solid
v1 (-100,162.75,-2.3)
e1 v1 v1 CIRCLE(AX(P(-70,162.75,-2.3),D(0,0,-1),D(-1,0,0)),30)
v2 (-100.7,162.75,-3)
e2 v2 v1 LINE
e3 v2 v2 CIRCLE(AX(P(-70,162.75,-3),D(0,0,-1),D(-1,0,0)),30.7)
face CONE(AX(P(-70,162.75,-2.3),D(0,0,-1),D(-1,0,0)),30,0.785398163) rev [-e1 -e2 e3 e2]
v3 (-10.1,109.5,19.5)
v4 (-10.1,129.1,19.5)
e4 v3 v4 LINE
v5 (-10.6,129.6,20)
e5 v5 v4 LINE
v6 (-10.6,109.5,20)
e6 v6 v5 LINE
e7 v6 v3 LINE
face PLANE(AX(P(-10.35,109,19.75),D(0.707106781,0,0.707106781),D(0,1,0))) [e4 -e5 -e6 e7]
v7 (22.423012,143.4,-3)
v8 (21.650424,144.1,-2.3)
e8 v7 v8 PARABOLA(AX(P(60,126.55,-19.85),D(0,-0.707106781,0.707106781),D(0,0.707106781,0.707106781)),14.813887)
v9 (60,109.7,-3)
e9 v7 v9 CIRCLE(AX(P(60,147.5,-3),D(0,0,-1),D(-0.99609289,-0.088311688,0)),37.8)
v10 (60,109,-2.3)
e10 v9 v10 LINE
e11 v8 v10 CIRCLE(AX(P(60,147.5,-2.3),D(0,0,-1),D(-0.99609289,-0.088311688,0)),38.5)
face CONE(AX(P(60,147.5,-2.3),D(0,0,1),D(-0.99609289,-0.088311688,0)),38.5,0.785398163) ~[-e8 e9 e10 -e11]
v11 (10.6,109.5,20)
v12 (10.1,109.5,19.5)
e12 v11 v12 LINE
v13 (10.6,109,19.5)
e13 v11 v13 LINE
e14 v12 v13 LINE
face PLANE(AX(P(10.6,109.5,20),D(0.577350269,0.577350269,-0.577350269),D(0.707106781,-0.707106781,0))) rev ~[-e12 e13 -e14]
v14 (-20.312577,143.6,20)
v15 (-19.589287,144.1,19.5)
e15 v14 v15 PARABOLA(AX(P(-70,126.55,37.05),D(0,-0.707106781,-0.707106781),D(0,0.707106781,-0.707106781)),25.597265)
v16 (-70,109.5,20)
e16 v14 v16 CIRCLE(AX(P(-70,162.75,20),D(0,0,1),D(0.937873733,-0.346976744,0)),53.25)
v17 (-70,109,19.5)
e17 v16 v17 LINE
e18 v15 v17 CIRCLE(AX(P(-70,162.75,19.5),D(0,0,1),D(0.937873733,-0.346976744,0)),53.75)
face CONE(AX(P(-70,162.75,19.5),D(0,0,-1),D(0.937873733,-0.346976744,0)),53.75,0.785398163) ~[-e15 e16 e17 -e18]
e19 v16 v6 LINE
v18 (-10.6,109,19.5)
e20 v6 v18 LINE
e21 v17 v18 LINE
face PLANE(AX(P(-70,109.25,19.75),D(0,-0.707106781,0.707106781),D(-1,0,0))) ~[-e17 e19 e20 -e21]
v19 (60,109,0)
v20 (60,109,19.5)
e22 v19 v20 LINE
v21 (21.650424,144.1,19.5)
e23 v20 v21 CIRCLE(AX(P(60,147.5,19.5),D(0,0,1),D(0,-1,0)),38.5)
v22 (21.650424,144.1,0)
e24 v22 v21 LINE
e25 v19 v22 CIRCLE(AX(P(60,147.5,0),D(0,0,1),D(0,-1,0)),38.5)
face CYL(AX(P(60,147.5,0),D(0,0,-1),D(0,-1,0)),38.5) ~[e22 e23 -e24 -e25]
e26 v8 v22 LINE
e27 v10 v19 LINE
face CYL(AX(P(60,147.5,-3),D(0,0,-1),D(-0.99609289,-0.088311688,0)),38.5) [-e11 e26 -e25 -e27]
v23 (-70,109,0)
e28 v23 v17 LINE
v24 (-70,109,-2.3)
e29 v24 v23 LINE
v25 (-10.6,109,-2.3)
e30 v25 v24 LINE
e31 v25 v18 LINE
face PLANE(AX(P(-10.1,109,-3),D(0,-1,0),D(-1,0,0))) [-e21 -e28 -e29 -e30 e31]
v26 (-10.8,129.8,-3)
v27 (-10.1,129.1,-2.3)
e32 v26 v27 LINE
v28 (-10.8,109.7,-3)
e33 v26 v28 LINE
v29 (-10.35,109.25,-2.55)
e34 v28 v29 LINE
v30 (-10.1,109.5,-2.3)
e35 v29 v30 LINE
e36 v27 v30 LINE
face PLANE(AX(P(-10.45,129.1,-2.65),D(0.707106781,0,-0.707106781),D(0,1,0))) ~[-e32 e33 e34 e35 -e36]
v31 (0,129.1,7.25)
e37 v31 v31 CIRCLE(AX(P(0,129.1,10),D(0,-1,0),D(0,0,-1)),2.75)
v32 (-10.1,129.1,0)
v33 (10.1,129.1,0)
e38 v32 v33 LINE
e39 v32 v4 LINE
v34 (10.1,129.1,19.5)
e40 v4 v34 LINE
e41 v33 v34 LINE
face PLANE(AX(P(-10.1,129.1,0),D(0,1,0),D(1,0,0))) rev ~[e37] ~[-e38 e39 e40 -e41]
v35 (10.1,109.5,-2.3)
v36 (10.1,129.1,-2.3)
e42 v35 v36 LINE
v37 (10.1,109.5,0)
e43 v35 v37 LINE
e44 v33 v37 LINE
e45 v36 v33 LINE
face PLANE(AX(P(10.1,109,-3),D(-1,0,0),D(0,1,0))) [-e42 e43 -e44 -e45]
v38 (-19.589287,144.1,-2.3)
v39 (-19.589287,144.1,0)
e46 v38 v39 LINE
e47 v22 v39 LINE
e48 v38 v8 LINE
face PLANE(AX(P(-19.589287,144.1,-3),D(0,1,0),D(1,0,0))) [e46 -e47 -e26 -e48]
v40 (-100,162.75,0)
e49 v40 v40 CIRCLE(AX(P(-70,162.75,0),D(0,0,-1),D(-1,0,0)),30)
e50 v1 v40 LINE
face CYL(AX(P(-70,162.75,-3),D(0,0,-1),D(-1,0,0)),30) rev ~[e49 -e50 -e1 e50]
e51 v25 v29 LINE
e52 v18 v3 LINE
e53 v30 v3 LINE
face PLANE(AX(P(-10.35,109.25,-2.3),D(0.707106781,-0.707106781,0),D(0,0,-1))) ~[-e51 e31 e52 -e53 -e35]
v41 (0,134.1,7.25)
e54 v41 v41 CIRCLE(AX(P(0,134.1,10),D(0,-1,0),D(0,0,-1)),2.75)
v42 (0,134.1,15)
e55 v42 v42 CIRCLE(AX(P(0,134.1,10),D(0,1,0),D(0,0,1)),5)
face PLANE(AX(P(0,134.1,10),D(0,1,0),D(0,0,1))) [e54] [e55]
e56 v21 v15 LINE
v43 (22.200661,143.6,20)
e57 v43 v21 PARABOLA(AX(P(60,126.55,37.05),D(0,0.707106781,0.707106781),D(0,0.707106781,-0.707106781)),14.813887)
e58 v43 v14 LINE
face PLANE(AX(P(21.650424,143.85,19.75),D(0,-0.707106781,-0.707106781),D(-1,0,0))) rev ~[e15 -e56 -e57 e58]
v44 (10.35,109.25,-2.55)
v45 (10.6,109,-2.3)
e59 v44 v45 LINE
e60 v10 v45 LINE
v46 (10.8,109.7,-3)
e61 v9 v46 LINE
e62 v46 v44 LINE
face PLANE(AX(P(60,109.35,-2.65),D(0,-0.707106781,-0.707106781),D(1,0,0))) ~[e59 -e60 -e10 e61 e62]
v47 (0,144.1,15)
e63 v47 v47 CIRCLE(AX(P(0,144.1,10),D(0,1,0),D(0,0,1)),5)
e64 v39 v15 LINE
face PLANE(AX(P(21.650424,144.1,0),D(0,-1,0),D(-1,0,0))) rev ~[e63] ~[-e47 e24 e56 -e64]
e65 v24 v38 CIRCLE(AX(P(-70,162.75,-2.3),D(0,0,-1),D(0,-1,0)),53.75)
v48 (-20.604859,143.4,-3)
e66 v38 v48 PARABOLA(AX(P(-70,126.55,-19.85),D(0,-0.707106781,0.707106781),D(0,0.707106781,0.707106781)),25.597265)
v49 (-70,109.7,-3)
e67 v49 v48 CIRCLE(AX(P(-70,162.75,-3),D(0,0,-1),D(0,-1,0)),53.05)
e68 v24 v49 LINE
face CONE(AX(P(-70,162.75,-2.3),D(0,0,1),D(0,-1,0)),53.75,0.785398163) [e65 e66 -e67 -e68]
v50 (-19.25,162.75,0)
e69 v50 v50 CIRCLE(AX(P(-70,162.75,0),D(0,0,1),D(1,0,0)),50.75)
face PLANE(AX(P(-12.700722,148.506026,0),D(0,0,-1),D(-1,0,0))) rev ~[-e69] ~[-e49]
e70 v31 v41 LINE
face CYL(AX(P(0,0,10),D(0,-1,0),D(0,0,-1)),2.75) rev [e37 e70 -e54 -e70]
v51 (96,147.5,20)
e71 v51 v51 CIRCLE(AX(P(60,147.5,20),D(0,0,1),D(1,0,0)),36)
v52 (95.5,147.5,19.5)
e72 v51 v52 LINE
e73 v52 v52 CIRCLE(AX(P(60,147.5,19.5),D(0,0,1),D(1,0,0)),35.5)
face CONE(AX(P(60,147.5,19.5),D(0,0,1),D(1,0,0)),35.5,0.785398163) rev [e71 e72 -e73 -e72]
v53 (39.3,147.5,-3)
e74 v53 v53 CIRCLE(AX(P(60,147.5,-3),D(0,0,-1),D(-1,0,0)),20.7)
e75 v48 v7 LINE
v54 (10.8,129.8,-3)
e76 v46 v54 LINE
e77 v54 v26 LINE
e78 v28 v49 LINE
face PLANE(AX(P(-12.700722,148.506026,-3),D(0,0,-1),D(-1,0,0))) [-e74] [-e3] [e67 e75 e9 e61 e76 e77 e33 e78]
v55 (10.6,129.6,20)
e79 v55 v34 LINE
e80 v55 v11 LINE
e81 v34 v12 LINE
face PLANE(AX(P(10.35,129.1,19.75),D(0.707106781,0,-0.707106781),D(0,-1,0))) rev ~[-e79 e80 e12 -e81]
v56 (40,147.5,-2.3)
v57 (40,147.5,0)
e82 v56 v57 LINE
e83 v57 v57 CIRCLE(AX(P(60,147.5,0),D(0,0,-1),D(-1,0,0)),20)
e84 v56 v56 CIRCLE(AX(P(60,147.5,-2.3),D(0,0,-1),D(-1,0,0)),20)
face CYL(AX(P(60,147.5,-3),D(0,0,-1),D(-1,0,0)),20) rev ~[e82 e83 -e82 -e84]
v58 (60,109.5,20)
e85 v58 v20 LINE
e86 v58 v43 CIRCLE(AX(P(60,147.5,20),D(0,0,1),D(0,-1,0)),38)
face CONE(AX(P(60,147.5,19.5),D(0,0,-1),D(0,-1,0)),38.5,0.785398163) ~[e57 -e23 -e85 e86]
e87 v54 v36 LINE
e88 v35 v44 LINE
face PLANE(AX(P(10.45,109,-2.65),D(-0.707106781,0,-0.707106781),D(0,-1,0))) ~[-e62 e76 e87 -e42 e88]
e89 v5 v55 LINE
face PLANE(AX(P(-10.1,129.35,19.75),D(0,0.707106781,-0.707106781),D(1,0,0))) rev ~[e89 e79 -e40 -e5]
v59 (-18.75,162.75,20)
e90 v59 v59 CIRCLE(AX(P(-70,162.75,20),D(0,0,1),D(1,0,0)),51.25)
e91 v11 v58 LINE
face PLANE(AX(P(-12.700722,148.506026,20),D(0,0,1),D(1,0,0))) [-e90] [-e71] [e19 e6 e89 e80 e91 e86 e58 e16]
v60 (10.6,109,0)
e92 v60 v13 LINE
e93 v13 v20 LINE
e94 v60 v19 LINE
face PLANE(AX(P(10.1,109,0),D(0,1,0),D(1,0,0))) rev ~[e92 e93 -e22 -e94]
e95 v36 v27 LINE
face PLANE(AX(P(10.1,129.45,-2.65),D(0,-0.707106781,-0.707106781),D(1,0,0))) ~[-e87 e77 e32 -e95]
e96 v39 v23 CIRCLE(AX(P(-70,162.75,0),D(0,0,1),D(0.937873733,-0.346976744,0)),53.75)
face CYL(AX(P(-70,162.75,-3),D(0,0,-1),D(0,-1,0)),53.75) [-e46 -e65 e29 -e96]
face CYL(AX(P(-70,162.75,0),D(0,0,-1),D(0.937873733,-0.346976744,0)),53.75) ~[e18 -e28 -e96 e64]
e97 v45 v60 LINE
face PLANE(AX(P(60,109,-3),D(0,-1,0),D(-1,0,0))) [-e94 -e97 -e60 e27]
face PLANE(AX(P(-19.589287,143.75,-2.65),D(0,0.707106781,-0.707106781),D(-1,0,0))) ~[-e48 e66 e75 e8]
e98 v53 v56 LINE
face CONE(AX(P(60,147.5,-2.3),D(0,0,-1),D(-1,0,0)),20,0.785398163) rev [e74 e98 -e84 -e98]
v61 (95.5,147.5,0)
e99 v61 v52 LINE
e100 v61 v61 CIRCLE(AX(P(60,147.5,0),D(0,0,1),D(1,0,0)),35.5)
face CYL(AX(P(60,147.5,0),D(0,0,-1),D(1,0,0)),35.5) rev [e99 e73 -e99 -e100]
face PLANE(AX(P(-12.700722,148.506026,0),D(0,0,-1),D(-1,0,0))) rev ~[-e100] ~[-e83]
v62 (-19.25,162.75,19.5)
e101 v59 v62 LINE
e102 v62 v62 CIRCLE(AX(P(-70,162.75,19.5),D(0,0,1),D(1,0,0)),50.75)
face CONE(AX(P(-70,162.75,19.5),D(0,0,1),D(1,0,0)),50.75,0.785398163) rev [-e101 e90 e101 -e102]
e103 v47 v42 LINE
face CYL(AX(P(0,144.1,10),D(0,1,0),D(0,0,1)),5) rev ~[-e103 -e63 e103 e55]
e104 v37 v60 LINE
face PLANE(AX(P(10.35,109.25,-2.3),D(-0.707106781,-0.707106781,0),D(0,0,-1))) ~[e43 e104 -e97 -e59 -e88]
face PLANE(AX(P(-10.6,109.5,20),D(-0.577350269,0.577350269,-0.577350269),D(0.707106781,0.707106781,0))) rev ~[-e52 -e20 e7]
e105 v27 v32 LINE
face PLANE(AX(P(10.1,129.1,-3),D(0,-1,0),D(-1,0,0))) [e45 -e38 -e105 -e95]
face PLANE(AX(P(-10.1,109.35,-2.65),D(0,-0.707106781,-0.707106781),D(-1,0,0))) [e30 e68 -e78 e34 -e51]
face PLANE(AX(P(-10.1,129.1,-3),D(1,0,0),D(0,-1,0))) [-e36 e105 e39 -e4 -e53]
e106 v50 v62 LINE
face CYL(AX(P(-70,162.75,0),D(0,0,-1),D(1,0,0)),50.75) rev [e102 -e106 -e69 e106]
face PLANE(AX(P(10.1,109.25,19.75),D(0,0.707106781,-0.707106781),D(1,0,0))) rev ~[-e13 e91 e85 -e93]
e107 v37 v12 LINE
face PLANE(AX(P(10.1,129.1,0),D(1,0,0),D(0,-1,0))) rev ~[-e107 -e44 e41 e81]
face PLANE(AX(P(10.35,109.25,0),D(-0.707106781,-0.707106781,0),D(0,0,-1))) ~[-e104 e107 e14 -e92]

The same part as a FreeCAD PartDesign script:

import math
import FreeCAD as App
import Part
import Sketcher

V = App.Vector
Q = App.Units.Quantity


def edges_at(feature, points):
    """Names of the edges that pass closest to the given points."""
    edges = feature.Shape.Edges
    near = lambda p: min(range(len(edges)), key=lambda i: edges[i].distToShape(Part.Vertex(*p))[0])
    return sorted({f"Edge{near(p) + 1}" for p in points})

doc = App.newDocument("Part")
params = doc.addObject("Spreadsheet::Sheet", "Params")
for row, (alias, value) in enumerate([
    ("sketch1_diameter", "71 mm"),
    ("sketch1_diameter2", "101.5 mm"),
    ("sketch1_radius", "38.5 mm"),
    ("sketch1_radius2", "53.75 mm"),
    ("sketch1_width", "20.2 mm"),
    ("pad1_length", "20 mm"),
    ("sketch2_diameter", "5.5 mm"),
    ("sketch3_diameter", "10 mm"),
    ("pocket2_length", "10 mm"),
    ("sketch4_diameter", "40 mm"),
    ("sketch4_diameter2", "60 mm"),
    ("sketch4_radius", "38.5 mm"),
    ("sketch4_radius2", "53.75 mm"),
    ("sketch4_width", "59.9 mm"),
    ("pad2_length", "3 mm"),
    ("chamfer_size", "0.7 mm"),
    ("chamfer2_size", "0.5 mm"),
], start=1):
    params.set(f"A{row}", alias)
    params.set(f"B{row}", "=" + value)
    params.setAlias(f"B{row}", alias)

body = doc.addObject("PartDesign::Body", "Body")

sketch1 = body.newObject("Sketcher::SketchObject", "Sketch")
sketch1.AttachmentSupport = (doc.getObject("XY_Plane"), [""])
sketch1.MapMode = "FlatFace"
sketch1.addGeometry(Part.LineSegment(V(-10.1, 109, 0), V(-10.1, 129.1, 0)), False)
sketch1.addGeometry(Part.LineSegment(V(-10.1, 129.1, 0), V(10.1, 129.1, 0)), False)
sketch1.addGeometry(Part.LineSegment(V(10.1, 129.1, 0), V(10.1, 109, 0)), False)
sketch1.addGeometry(Part.LineSegment(V(10.1, 109, 0), V(60, 109, 0)), False)
sketch1.addGeometry(Part.ArcOfCircle(Part.Circle(V(60, 147.5, 0), V(0, 0, 1), 38.5), math.radians(-90), math.radians(185.066487)), False)
sketch1.addGeometry(Part.LineSegment(V(21.650424, 144.1, 0), V(-19.589287, 144.1, 0)), False)
sketch1.addGeometry(Part.ArcOfCircle(Part.Circle(V(-70, 162.75, 0), V(0, 0, 1), 53.75), math.radians(-20.30251), math.radians(270)), False)
sketch1.addGeometry(Part.LineSegment(V(-70, 109, 0), V(-10.1, 109, 0)), False)
sketch1.addGeometry(Part.Circle(V(60, 147.5, 0), V(0, 0, 1), 35.5), False)
sketch1.addGeometry(Part.Circle(V(-70, 162.75, 0), V(0, 0, 1), 50.75), False)
sketch1.addConstraint(Sketcher.Constraint("Coincident", 0, 2, 1, 1))
sketch1.addConstraint(Sketcher.Constraint("Coincident", 1, 2, 2, 1))
sketch1.addConstraint(Sketcher.Constraint("Coincident", 2, 2, 3, 1))
sketch1.addConstraint(Sketcher.Constraint("Tangent", 3, 2, 4, 1))
sketch1.addConstraint(Sketcher.Constraint("Coincident", 4, 2, 5, 1))
sketch1.addConstraint(Sketcher.Constraint("Coincident", 5, 2, 6, 1))
sketch1.addConstraint(Sketcher.Constraint("Tangent", 6, 2, 7, 1))
sketch1.addConstraint(Sketcher.Constraint("Coincident", 7, 2, 0, 1))
sketch1.addConstraint(Sketcher.Constraint("Vertical", 0))
sketch1.addConstraint(Sketcher.Constraint("Horizontal", 1))
sketch1.addConstraint(Sketcher.Constraint("Vertical", 2))
sketch1.addConstraint(Sketcher.Constraint("Horizontal", 3))
sketch1.addConstraint(Sketcher.Constraint("Horizontal", 5))
sketch1.addConstraint(Sketcher.Constraint("Horizontal", 7))
sketch1.addConstraint(Sketcher.Constraint("Coincident", 8, 3, 4, 3))
sketch1.addConstraint(Sketcher.Constraint("Coincident", 9, 3, 6, 3))
sketch1.addConstraint(Sketcher.Constraint("Symmetric", 2, 2, 7, 2, -2))
sketch1.addConstraint(Sketcher.Constraint("Diameter", 8, Q("71 mm")))
sketch1.addConstraint(Sketcher.Constraint("Diameter", 9, Q("101.5 mm")))
sketch1.addConstraint(Sketcher.Constraint("Radius", 4, Q("38.5 mm")))
sketch1.addConstraint(Sketcher.Constraint("Radius", 6, Q("53.75 mm")))
sketch1.addConstraint(Sketcher.Constraint("DistanceX", 1, 1, 1, 2, Q("20.2 mm")))
sketch1.addConstraint(Sketcher.Constraint("DistanceX", 3, 1, 3, 2, Q("49.9 mm")))
sketch1.addConstraint(Sketcher.Constraint("DistanceX", 7, 1, 7, 2, Q("59.9 mm")))
sketch1.addConstraint(Sketcher.Constraint("DistanceY", 0, 1, 0, 2, Q("20.1 mm")))
sketch1.addConstraint(Sketcher.Constraint("DistanceY", -1, 1, 2, 2, Q("109 mm")))
sketch1.addConstraint(Sketcher.Constraint("DistanceY", 1, 2, 4, 2, Q("15 mm")))
sketch1.setExpression("Constraints[17]", "Params.sketch1_diameter")
sketch1.setExpression("Constraints[18]", "Params.sketch1_diameter2")
sketch1.setExpression("Constraints[19]", "Params.sketch1_radius")
sketch1.setExpression("Constraints[20]", "Params.sketch1_radius2")
sketch1.setExpression("Constraints[21]", "Params.sketch1_width")
pad1 = body.newObject("PartDesign::Pad", "Pad")
pad1.Profile = sketch1
pad1.setExpression("Length", "Params.pad1_length")

sketch2 = body.newObject("Sketcher::SketchObject", "Sketch001")
sketch2.AttachmentSupport = (doc.getObject("XZ_Plane"), [""])
sketch2.MapMode = "FlatFace"
sketch2.addGeometry(Part.Circle(V(0, 10, 0), V(0, 0, 1), 2.75), False)
sketch2.addConstraint(Sketcher.Constraint("PointOnObject", 0, 3, -2))
sketch2.addConstraint(Sketcher.Constraint("Diameter", 0, Q("5.5 mm")))
sketch2.addConstraint(Sketcher.Constraint("DistanceY", -1, 1, 0, 3, Q("10 mm")))
sketch2.setExpression("Constraints[1]", "Params.sketch2_diameter")
pocket1 = body.newObject("PartDesign::Pocket", "Pocket")
pocket1.Profile = sketch2
pocket1.Type = "ThroughAll"

sketch3 = body.newObject("Sketcher::SketchObject", "Sketch002")
sketch3.AttachmentSupport = (doc.getObject("XZ_Plane"), [""])
sketch3.MapMode = "FlatFace"
sketch3.AttachmentOffset = App.Placement(V(0, 0, -144.1), App.Rotation())
sketch3.addGeometry(Part.Circle(V(0, 10, 0), V(0, 0, 1), 5), False)
sketch3.addConstraint(Sketcher.Constraint("PointOnObject", 0, 3, -2))
sketch3.addConstraint(Sketcher.Constraint("Diameter", 0, Q("10 mm")))
sketch3.addConstraint(Sketcher.Constraint("DistanceY", -1, 1, 0, 3, Q("10 mm")))
sketch3.setExpression("Constraints[1]", "Params.sketch3_diameter")
pocket2 = body.newObject("PartDesign::Pocket", "Pocket001")
pocket2.Profile = sketch3
pocket2.setExpression("Length", "Params.pocket2_length")
pocket2.Reversed = True

sketch4 = body.newObject("Sketcher::SketchObject", "Sketch003")
sketch4.AttachmentSupport = (doc.getObject("XY_Plane"), [""])
sketch4.MapMode = "FlatFace"
sketch4.AttachmentOffset = App.Placement(V(0, 0, -3), App.Rotation())
sketch4.addGeometry(Part.LineSegment(V(-10.1, 109, 0), V(-70, 109, 0)), False)
sketch4.addGeometry(Part.ArcOfCircle(Part.Circle(V(-70, 162.75, 0), V(0, 0, 1), 53.75), math.radians(-20.30251), math.radians(270)), False)
sketch4.addGeometry(Part.LineSegment(V(-19.589287, 144.1, 0), V(21.650424, 144.1, 0)), False)
sketch4.addGeometry(Part.ArcOfCircle(Part.Circle(V(60, 147.5, 0), V(0, 0, 1), 38.5), math.radians(-90), math.radians(185.066487)), False)
sketch4.addGeometry(Part.LineSegment(V(60, 109, 0), V(10.1, 109, 0)), False)
sketch4.addGeometry(Part.LineSegment(V(10.1, 109, 0), V(10.1, 129.1, 0)), False)
sketch4.addGeometry(Part.LineSegment(V(10.1, 129.1, 0), V(-10.1, 129.1, 0)), False)
sketch4.addGeometry(Part.LineSegment(V(-10.1, 129.1, 0), V(-10.1, 109, 0)), False)
sketch4.addGeometry(Part.Circle(V(60, 147.5, 0), V(0, 0, 1), 20), False)
sketch4.addGeometry(Part.Circle(V(-70, 162.75, 0), V(0, 0, 1), 30), False)
sketch4.addConstraint(Sketcher.Constraint("Tangent", 0, 2, 1, 2))
sketch4.addConstraint(Sketcher.Constraint("Coincident", 1, 1, 2, 1))
sketch4.addConstraint(Sketcher.Constraint("Coincident", 2, 2, 3, 2))
sketch4.addConstraint(Sketcher.Constraint("Tangent", 3, 1, 4, 1))
sketch4.addConstraint(Sketcher.Constraint("Coincident", 4, 2, 5, 1))
sketch4.addConstraint(Sketcher.Constraint("Coincident", 5, 2, 6, 1))
sketch4.addConstraint(Sketcher.Constraint("Coincident", 6, 2, 7, 1))
sketch4.addConstraint(Sketcher.Constraint("Coincident", 7, 2, 0, 1))
sketch4.addConstraint(Sketcher.Constraint("Horizontal", 0))
sketch4.addConstraint(Sketcher.Constraint("Horizontal", 2))
sketch4.addConstraint(Sketcher.Constraint("Horizontal", 4))
sketch4.addConstraint(Sketcher.Constraint("Vertical", 5))
sketch4.addConstraint(Sketcher.Constraint("Horizontal", 6))
sketch4.addConstraint(Sketcher.Constraint("Vertical", 7))
sketch4.addConstraint(Sketcher.Constraint("Coincident", 8, 3, 3, 3))
sketch4.addConstraint(Sketcher.Constraint("Coincident", 9, 3, 1, 3))
sketch4.addConstraint(Sketcher.Constraint("Symmetric", 4, 2, 7, 2, -2))
sketch4.addConstraint(Sketcher.Constraint("Diameter", 8, Q("40 mm")))
sketch4.addConstraint(Sketcher.Constraint("Diameter", 9, Q("60 mm")))
sketch4.addConstraint(Sketcher.Constraint("Radius", 3, Q("38.5 mm")))
sketch4.addConstraint(Sketcher.Constraint("Radius", 1, Q("53.75 mm")))
sketch4.addConstraint(Sketcher.Constraint("DistanceX", 0, 2, 0, 1, Q("59.9 mm")))
sketch4.addConstraint(Sketcher.Constraint("DistanceX", 4, 2, 4, 1, Q("49.9 mm")))
sketch4.addConstraint(Sketcher.Constraint("DistanceX", 6, 2, 6, 1, Q("20.2 mm")))
sketch4.addConstraint(Sketcher.Constraint("DistanceY", 5, 1, 5, 2, Q("20.1 mm")))
sketch4.addConstraint(Sketcher.Constraint("DistanceY", -1, 1, 0, 2, Q("109 mm")))
sketch4.addConstraint(Sketcher.Constraint("DistanceY", 5, 2, 2, 2, Q("15 mm")))
sketch4.setExpression("Constraints[17]", "Params.sketch4_diameter")
sketch4.setExpression("Constraints[18]", "Params.sketch4_diameter2")
sketch4.setExpression("Constraints[19]", "Params.sketch4_radius")
sketch4.setExpression("Constraints[20]", "Params.sketch4_radius2")
sketch4.setExpression("Constraints[21]", "Params.sketch4_width")
pad2 = body.newObject("PartDesign::Pad", "Pad001")
pad2.Profile = sketch4
pad2.setExpression("Length", "Params.pad2_length")
doc.recompute()

chamfer = body.newObject("PartDesign::Chamfer", "Chamfer")
chamfer.Base = (pad2, edges_at(pad2, [
    (-10.1, 119.05, -3),
    (-40.05, 109, -3),
    (-100.713, 206.861, -3),
    (1.031, 144.1, -3),
    (85.994, 175.9, -3),
    (35.05, 109, -3),
    (10.1, 119.05, -3),
    (0, 129.1, -3),
    (80, 147.5, -3),
    (-40, 162.75, -3),
]))
chamfer.setExpression("Size", "Params.chamfer_size")
doc.recompute()

chamfer2 = body.newObject("PartDesign::Chamfer", "Chamfer001")
chamfer2.Base = (chamfer, edges_at(chamfer, [
    (0, 129.1, 20),
    (10.1, 109, 10),
    (-10.1, 109, 8.85),
    (10.1, 119.05, 20),
    (35.05, 109, 20),
    (-120.75, 162.75, 20),
    (85.994, 175.9, 20),
    (24.5, 147.5, 20),
    (1.031, 144.1, 20),
    (-100.713, 206.861, 20),
    (-40.05, 109, 20),
    (-10.1, 119.05, 20),
]))
chamfer2.setExpression("Size", "Params.chamfer2_size")

doc.recompute()
